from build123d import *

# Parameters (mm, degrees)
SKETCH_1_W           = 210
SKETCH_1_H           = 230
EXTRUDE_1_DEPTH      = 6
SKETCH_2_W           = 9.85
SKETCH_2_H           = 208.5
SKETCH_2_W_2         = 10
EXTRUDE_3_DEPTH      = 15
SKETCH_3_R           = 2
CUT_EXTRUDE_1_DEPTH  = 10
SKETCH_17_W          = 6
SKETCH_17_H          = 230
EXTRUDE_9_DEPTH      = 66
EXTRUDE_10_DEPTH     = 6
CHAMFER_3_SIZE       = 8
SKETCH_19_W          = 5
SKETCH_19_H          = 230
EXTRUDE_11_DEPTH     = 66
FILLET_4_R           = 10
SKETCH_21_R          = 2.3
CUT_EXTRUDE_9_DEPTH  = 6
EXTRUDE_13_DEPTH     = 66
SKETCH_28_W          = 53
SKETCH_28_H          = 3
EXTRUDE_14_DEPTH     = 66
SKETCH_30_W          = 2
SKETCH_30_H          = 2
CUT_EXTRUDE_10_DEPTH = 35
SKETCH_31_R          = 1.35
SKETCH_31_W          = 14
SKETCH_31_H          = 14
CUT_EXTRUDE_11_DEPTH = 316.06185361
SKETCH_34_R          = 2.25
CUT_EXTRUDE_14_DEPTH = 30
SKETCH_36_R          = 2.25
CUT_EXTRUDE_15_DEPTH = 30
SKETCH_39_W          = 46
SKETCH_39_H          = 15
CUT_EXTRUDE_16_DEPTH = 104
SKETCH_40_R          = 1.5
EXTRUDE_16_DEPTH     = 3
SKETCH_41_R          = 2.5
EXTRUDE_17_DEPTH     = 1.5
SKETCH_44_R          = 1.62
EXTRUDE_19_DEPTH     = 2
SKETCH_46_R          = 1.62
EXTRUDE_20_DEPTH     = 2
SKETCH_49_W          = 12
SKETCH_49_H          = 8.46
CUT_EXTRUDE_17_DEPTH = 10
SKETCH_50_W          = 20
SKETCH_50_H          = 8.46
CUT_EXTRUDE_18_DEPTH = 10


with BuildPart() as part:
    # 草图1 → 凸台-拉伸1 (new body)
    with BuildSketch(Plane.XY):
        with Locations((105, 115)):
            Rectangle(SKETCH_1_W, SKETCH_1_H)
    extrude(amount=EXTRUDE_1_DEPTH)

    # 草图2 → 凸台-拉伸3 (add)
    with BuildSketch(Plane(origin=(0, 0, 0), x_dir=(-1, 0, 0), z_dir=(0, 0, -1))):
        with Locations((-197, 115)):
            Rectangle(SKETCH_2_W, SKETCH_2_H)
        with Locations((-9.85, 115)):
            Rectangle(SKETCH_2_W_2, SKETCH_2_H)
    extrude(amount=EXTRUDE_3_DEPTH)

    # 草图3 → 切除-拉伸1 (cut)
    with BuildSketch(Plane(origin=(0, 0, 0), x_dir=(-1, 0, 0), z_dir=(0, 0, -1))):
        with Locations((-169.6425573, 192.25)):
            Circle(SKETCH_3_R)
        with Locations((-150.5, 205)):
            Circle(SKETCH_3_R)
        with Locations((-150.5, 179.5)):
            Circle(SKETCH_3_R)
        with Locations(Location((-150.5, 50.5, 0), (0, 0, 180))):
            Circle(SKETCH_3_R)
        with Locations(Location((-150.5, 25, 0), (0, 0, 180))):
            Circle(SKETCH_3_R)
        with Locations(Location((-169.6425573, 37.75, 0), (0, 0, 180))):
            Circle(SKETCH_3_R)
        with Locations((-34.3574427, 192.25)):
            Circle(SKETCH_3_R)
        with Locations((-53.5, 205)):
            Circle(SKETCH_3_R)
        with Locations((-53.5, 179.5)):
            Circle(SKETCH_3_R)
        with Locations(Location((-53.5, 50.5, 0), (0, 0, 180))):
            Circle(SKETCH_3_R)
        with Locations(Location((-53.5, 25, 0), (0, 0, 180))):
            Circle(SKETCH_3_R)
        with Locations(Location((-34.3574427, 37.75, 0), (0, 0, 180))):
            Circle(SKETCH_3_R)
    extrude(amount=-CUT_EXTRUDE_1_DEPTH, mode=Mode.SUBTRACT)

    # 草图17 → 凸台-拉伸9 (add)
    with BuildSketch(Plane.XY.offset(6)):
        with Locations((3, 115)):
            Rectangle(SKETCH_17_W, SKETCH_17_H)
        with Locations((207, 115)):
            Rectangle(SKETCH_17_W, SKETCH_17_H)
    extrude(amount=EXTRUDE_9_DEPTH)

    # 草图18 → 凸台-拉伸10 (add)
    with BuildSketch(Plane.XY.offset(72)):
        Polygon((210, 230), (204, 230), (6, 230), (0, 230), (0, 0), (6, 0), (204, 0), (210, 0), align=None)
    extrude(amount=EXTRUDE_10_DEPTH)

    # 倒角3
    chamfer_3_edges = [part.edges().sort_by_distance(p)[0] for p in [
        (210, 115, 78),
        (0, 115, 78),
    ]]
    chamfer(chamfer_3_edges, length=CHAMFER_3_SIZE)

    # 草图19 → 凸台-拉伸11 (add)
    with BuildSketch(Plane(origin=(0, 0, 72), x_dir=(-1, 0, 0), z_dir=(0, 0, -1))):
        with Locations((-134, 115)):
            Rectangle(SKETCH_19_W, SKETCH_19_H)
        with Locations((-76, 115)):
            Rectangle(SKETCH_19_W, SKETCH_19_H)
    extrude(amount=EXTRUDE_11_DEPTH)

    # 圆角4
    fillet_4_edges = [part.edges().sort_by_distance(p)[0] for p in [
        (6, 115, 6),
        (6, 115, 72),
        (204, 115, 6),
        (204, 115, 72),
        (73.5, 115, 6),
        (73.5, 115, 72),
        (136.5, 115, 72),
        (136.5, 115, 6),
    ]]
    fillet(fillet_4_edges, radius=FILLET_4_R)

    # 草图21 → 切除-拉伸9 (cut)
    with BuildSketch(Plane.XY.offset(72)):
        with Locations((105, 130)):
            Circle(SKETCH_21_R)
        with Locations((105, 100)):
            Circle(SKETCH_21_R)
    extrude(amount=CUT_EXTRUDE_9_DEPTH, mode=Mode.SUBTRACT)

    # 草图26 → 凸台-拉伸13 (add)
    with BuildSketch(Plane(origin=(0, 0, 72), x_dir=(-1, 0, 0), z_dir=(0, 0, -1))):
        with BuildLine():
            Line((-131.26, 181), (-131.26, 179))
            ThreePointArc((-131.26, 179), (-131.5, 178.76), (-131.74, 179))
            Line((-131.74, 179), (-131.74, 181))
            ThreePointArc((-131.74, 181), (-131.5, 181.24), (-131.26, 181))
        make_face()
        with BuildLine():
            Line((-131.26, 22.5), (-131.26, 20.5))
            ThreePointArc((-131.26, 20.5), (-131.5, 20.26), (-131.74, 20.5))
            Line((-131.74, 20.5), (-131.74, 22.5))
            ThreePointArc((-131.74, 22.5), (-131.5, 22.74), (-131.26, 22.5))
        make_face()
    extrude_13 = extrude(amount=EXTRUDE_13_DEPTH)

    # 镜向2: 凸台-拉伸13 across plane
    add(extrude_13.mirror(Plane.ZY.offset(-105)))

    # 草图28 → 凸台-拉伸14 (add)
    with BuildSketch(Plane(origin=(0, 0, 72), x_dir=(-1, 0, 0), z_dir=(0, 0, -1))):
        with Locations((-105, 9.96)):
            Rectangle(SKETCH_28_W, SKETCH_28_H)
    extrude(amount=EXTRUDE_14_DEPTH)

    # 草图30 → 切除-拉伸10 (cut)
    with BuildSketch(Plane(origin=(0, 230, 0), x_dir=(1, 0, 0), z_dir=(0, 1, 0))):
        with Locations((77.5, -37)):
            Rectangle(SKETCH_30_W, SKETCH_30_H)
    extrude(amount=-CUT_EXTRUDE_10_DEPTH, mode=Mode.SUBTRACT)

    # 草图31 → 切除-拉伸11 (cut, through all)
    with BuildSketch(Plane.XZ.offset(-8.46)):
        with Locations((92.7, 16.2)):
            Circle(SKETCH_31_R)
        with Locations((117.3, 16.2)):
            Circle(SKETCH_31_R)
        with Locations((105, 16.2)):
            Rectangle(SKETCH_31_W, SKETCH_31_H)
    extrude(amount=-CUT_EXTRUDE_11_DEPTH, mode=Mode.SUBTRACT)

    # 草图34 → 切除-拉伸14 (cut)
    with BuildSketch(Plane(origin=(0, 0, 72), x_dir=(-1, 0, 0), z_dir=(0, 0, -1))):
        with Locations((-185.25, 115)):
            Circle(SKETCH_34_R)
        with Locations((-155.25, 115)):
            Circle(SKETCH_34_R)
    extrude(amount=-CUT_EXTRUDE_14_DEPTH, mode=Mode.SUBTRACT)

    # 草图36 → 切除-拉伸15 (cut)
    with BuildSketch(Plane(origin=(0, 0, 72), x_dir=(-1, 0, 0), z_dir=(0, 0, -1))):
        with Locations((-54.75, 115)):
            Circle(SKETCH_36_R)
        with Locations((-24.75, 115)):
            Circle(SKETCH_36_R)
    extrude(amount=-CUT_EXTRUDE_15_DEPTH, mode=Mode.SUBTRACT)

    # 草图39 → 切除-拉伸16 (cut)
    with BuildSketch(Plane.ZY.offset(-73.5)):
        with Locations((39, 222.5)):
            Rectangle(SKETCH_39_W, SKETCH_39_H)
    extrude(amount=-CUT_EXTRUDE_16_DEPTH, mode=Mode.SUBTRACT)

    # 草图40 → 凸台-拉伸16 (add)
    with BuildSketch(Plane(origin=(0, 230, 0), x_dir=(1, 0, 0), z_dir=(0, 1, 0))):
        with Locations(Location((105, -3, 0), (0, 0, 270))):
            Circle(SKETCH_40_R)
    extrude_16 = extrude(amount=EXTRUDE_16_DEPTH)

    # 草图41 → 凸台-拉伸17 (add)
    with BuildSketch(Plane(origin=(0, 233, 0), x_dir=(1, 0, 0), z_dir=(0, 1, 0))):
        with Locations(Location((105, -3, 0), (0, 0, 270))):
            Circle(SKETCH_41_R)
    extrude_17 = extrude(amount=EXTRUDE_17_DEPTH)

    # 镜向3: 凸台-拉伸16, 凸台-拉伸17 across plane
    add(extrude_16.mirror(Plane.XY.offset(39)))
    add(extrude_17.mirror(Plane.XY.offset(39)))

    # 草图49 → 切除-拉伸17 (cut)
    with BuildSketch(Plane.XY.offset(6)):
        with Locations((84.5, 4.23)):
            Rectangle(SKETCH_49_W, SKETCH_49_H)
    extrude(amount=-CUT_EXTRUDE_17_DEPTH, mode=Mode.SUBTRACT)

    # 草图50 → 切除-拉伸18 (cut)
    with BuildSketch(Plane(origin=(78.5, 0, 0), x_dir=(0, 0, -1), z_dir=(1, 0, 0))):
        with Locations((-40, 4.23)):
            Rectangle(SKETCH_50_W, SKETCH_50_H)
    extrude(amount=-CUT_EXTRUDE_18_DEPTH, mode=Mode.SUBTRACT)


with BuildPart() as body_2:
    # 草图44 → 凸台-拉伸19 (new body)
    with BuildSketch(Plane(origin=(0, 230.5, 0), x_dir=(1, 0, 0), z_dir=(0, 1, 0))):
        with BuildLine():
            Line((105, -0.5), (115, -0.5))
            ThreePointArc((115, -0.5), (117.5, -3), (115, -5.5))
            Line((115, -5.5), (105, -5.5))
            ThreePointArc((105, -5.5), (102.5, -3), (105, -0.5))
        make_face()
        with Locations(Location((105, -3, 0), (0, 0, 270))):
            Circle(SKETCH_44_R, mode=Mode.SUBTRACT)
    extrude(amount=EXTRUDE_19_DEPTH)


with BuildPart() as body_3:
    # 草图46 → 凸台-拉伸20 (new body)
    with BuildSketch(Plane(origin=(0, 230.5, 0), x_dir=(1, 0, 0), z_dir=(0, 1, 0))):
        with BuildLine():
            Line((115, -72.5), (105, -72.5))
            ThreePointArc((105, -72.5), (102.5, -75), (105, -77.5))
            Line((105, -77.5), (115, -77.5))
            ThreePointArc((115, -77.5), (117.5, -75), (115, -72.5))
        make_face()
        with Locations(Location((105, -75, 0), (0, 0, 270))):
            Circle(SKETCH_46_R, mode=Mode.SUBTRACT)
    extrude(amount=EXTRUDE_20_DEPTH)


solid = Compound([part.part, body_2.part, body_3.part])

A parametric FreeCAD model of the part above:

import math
import FreeCAD as App
import Part
import Sketcher


def edges_at(feature, points):
    """Names of the edges that pass closest to the given points."""
    edges = feature.Shape.Edges
    near = lambda p: min(range(len(edges)), key=lambda i: edges[i].distToShape(Part.Vertex(*p))[0])
    return sorted({f"Edge{near(p) + 1}" for p in points})


def add_polygon(sketch, points):
    """Adds a closed chain of lines whose ends are joined by coincident constraints."""
    first, n = sketch.GeometryCount, len(points)
    for a, b in zip(points, points[1:] + points[:1]):
        sketch.addGeometry(Part.LineSegment(App.Vector(*a, 0), App.Vector(*b, 0)), False)
    for i in range(n):
        sketch.addConstraint(Sketcher.Constraint("Coincident", first + i, 2, first + (i + 1) % n, 1))

doc = App.newDocument("Part")
body = doc.addObject("PartDesign::Body", "Body")

# Sketch on XY plane
sketch1 = doc.addObject("Sketcher::SketchObject", "Sketch")
body.addObject(sketch1)
sketch1.AttachmentSupport = (doc.XY_Plane, [""])
sketch1.MapMode = "FlatFace"
add_polygon(sketch1, [(0, 230), (0, 0), (210, 0), (210, 230)])  # lines 0-3
sketch1.addConstraint([
    Sketcher.Constraint("Vertical", 0),
    Sketcher.Constraint("Horizontal", 1),
    Sketcher.Constraint("Vertical", 2),
    Sketcher.Constraint("Horizontal", 3),
    Sketcher.Constraint("Coincident", 0, 2, -1, 1),
    Sketcher.Constraint("DistanceX", 1, 1, 1, 2, 210.0),
    Sketcher.Constraint("DistanceY", 0, 2, 0, 1, 230.0),
])
pad1 = doc.addObject("PartDesign::Pad", "Pad")
body.addObject(pad1)
pad1.Profile = sketch1
pad1.Length = 6

# Sketch on XY plane
sketch2 = doc.addObject("Sketcher::SketchObject", "Sketch001")
body.addObject(sketch2)
sketch2.AttachmentSupport = (doc.XY_Plane, [""])
sketch2.MapMode = "FlatFace"
add_polygon(sketch2, [(202, 219), (202, 11), (192, 11), (192, 219)])  # lines 0-3
add_polygon(sketch2, [(15, 219), (15, 11), (5, 11), (5, 219)])  # lines 4-7
sketch2.addConstraint([
    Sketcher.Constraint("Vertical", 0),
    Sketcher.Constraint("Horizontal", 1),
    Sketcher.Constraint("Vertical", 2),
    Sketcher.Constraint("Horizontal", 3),
    Sketcher.Constraint("Vertical", 4),
    Sketcher.Constraint("Horizontal", 5),
    Sketcher.Constraint("Vertical", 6),
    Sketcher.Constraint("Horizontal", 7),
    Sketcher.Constraint("Horizontal", 1, 2, 4, 2),
    Sketcher.Constraint("Horizontal", 3, 2, 6, 2),
    Sketcher.Constraint("DistanceX", 5, 2, 5, 1, 10.0),
    Sketcher.Constraint("DistanceY", 0, 2, 0, 1, 208.5),
    Sketcher.Constraint("DistanceX", 1, 2, 1, 1, 9.85),
    Sketcher.Constraint("DistanceY", -1, 1, 0, 2, 10.75),
    Sketcher.Constraint("DistanceX", -1, 1, 4, 2, 14.85),
    Sketcher.Constraint("DistanceX", -1, 1, 0, 2, 201.925),
])
pad2 = doc.addObject("PartDesign::Pad", "Pad001")
body.addObject(pad2)
pad2.Profile = sketch2
pad2.Length = 15
pad2.Reversed = True

# Sketch on XY plane
sketch3 = doc.addObject("Sketcher::SketchObject", "Sketch002")
body.addObject(sketch3)
sketch3.AttachmentSupport = (doc.XY_Plane, [""])
sketch3.MapMode = "FlatFace"
sketch3.addGeometry([
    Part.Circle(App.Vector(169.6, 192.2, 0), App.Vector(0, 0, 1), 2),  # 0
    Part.Circle(App.Vector(150.5, 205, 0), App.Vector(0, 0, 1), 2),  # 1
    Part.Circle(App.Vector(150.5, 179.5, 0), App.Vector(0, 0, 1), 2),  # 2
    Part.Circle(App.Vector(150.5, 50.5, 0), App.Vector(0, 0, 1), 2),  # 3
    Part.Circle(App.Vector(150.5, 25, 0), App.Vector(0, 0, 1), 2),  # 4
    Part.Circle(App.Vector(169.6, 37.8, 0), App.Vector(0, 0, 1), 2),  # 5
    Part.Circle(App.Vector(34.4, 192.2, 0), App.Vector(0, 0, 1), 2),  # 6
    Part.Circle(App.Vector(53.5, 205, 0), App.Vector(0, 0, 1), 2),  # 7
    Part.Circle(App.Vector(53.5, 179.5, 0), App.Vector(0, 0, 1), 2),  # 8
    Part.Circle(App.Vector(53.5, 50.5, 0), App.Vector(0, 0, 1), 2),  # 9
    Part.Circle(App.Vector(53.5, 25, 0), App.Vector(0, 0, 1), 2),  # 10
    Part.Circle(App.Vector(34.4, 37.8, 0), App.Vector(0, 0, 1), 2),  # 11
], False)
sketch3.addConstraint([
    Sketcher.Constraint("Equal", 0, 1),
    Sketcher.Constraint("Equal", 1, 2),
    Sketcher.Constraint("Equal", 2, 3),
    Sketcher.Constraint("Equal", 3, 4),
    Sketcher.Constraint("Equal", 4, 5),
    Sketcher.Constraint("Equal", 5, 6),
    Sketcher.Constraint("Equal", 6, 7),
    Sketcher.Constraint("Equal", 7, 8),
    Sketcher.Constraint("Equal", 8, 9),
    Sketcher.Constraint("Equal", 9, 10),
    Sketcher.Constraint("Equal", 10, 11),
    Sketcher.Constraint("Horizontal", 0, 3, 6, 3),
    Sketcher.Constraint("Horizontal", 1, 3, 7, 3),
    Sketcher.Constraint("Horizontal", 2, 3, 8, 3),
    Sketcher.Constraint("Horizontal", 3, 3, 9, 3),
    Sketcher.Constraint("Horizontal", 4, 3, 10, 3),
    Sketcher.Constraint("Horizontal", 5, 3, 11, 3),
    Sketcher.Constraint("Vertical", 1, 3, 2, 3),
    Sketcher.Constraint("Vertical", 2, 3, 3, 3),
    Sketcher.Constraint("Vertical", 3, 3, 4, 3),
    Sketcher.Constraint("Vertical", 0, 3, 5, 3),
    Sketcher.Constraint("Vertical", 7, 3, 8, 3),
    Sketcher.Constraint("Vertical", 8, 3, 9, 3),
    Sketcher.Constraint("Vertical", 9, 3, 10, 3),
    Sketcher.Constraint("Vertical", 6, 3, 11, 3),
    Sketcher.Constraint("Diameter", 0, 4.0),
    Sketcher.Constraint("DistanceY", -1, 1, 1, 3, 205.0),
    Sketcher.Constraint("DistanceY", -1, 1, 4, 3, 25.0),
    Sketcher.Constraint("DistanceY", 3, 3, 2, 3, 129.0),
    Sketcher.Constraint("DistanceX", 7, 3, 1, 3, 97.0),
    Sketcher.Constraint("DistanceX", -1, 1, 1, 3, 150.5),
    Sketcher.Constraint("DistanceY", -1, 1, 2, 3, 179.5),
    Sketcher.Constraint("DistanceY", 5, 3, 0, 3, 154.5),
    Sketcher.Constraint("DistanceY", -1, 1, 0, 3, 192.25),
    Sketcher.Constraint("DistanceX", -1, 1, 0, 3, 169.642557),
    Sketcher.Constraint("DistanceX", -1, 1, 6, 3, 34.357443),
])
pocket1 = doc.addObject("PartDesign::Pocket", "Pocket")
body.addObject(pocket1)
pocket1.Profile = sketch3
pocket1.Length = 10
pocket1.Reversed = True

# Sketch on XY plane
sketch4 = doc.addObject("Sketcher::SketchObject", "Sketch003")
body.addObject(sketch4)
sketch4.AttachmentSupport = (doc.XY_Plane, [""])
sketch4.MapMode = "FlatFace"
sketch4.AttachmentOffset = App.Placement(App.Vector(0, 0, 6), App.Rotation())
add_polygon(sketch4, [(0, 230), (0, 0), (6, 0), (6, 230)])  # lines 0-3
add_polygon(sketch4, [(204, 230), (204, 0), (210, 0), (210, 230)])  # lines 4-7
sketch4.addConstraint([
    Sketcher.Constraint("Vertical", 0),
    Sketcher.Constraint("Horizontal", 1),
    Sketcher.Constraint("Vertical", 2),
    Sketcher.Constraint("Horizontal", 3),
    Sketcher.Constraint("Vertical", 4),
    Sketcher.Constraint("Horizontal", 5),
    Sketcher.Constraint("Vertical", 6),
    Sketcher.Constraint("Horizontal", 7),
    Sketcher.Constraint("Coincident", 0, 2, -1, 1),
    Sketcher.Constraint("PointOnObject", 4, 2, -1),
    Sketcher.Constraint("Horizontal", 3, 2, 6, 2),
    Sketcher.Constraint("Equal", 3, 5),
    Sketcher.Constraint("DistanceX", 1, 1, 1, 2, 6.0),
    Sketcher.Constraint("DistanceY", 0, 2, 0, 1, 230.0),
    Sketcher.Constraint("DistanceX", -1, 1, 4, 2, 204.0),
])
pad3 = doc.addObject("PartDesign::Pad", "Pad002")
body.addObject(pad3)
pad3.Profile = sketch4
pad3.Length = 66

# Sketch on XY plane
sketch5 = doc.addObject("Sketcher::SketchObject", "Sketch004")
body.addObject(sketch5)
sketch5.AttachmentSupport = (doc.XY_Plane, [""])
sketch5.MapMode = "FlatFace"
sketch5.AttachmentOffset = App.Placement(App.Vector(0, 0, 72), App.Rotation())
add_polygon(sketch5, [(210, 230), (0, 230), (0, 0), (210, 0)])  # lines 0-3
sketch5.addConstraint([
    Sketcher.Constraint("Horizontal", 0),
    Sketcher.Constraint("Vertical", 1),
    Sketcher.Constraint("Horizontal", 2),
    Sketcher.Constraint("Vertical", 3),
    Sketcher.Constraint("Coincident", 1, 2, -1, 1),
    Sketcher.Constraint("DistanceX", 0, 2, 0, 1, 210.0),
    Sketcher.Constraint("DistanceY", 1, 2, 1, 1, 230.0),
])
pad4 = doc.addObject("PartDesign::Pad", "Pad003")
body.addObject(pad4)
pad4.Profile = sketch5
pad4.Length = 6
doc.recompute()

chamfer = doc.addObject("PartDesign::Chamfer", "Chamfer")
body.addObject(chamfer)
chamfer.Base = (pad4, edges_at(pad4, [(210, 115, 78), (0, 115, 78)]))
chamfer.Size = 8

# Sketch on XY plane
sketch6 = doc.addObject("Sketcher::SketchObject", "Sketch005")
body.addObject(sketch6)
sketch6.AttachmentSupport = (doc.XY_Plane, [""])
sketch6.MapMode = "FlatFace"
sketch6.AttachmentOffset = App.Placement(App.Vector(0, 0, 72), App.Rotation())
add_polygon(sketch6, [(136, 230), (136, 0), (132, 0), (132, 230)])  # lines 0-3
add_polygon(sketch6, [(78, 230), (78, 0), (74, 0), (74, 230)])  # lines 4-7
sketch6.addConstraint([
    Sketcher.Constraint("Vertical", 0),
    Sketcher.Constraint("Horizontal", 1),
    Sketcher.Constraint("Vertical", 2),
    Sketcher.Constraint("Horizontal", 3),
    Sketcher.Constraint("Vertical", 4),
    Sketcher.Constraint("Horizontal", 5),
    Sketcher.Constraint("Vertical", 6),
    Sketcher.Constraint("Horizontal", 7),
    Sketcher.Constraint("PointOnObject", 0, 2, -1),
    Sketcher.Constraint("PointOnObject", 4, 2, -1),
    Sketcher.Constraint("Horizontal", 3, 2, 6, 2),
    Sketcher.Constraint("Equal", 3, 5),
    Sketcher.Constraint("DistanceX", 1, 2, 1, 1, 5.0),
    Sketcher.Constraint("DistanceY", 0, 2, 0, 1, 230.0),
    Sketcher.Constraint("DistanceX", 4, 2, 1, 2, 53.0),
    Sketcher.Constraint("DistanceX", -1, 1, 0, 2, 136.5),
])
pad5 = doc.addObject("PartDesign::Pad", "Pad004")
body.addObject(pad5)
pad5.Profile = sketch6
pad5.Length = 66
pad5.Reversed = True
doc.recompute()

fillet = doc.addObject("PartDesign::Fillet", "Fillet")
body.addObject(fillet)
fillet.Base = (pad5, edges_at(pad5, [
    (6, 115, 6),
    (6, 115, 72),
    (204, 115, 6),
    (204, 115, 72),
    (73.5, 115, 6),
    (73.5, 115, 72),
    (136.5, 115, 72),
    (136.5, 115, 6),
]))
fillet.Radius = 10

# Sketch on XY plane
sketch7 = doc.addObject("Sketcher::SketchObject", "Sketch006")
body.addObject(sketch7)
sketch7.AttachmentSupport = (doc.XY_Plane, [""])
sketch7.MapMode = "FlatFace"
sketch7.AttachmentOffset = App.Placement(App.Vector(0, 0, 72), App.Rotation())
sketch7.addGeometry([
    Part.Circle(App.Vector(105, 130, 0), App.Vector(0, 0, 1), 2.3),
    Part.Circle(App.Vector(105, 100, 0), App.Vector(0, 0, 1), 2.3),
], False)
sketch7.addConstraint([
    Sketcher.Constraint("Equal", 0, 1),
    Sketcher.Constraint("Vertical", 0, 3, 1, 3),
    Sketcher.Constraint("Diameter", 0, 4.6),
    Sketcher.Constraint("DistanceX", -1, 1, 0, 3, 105.0),
    Sketcher.Constraint("DistanceY", -1, 1, 0, 3, 130.0),
    Sketcher.Constraint("DistanceY", -1, 1, 1, 3, 100.0),
])
pocket2 = doc.addObject("PartDesign::Pocket", "Pocket001")
body.addObject(pocket2)
pocket2.Profile = sketch7
pocket2.Length = 6
pocket2.Reversed = True

# Sketch on XY plane
sketch8 = doc.addObject("Sketcher::SketchObject", "Sketch007")
body.addObject(sketch8)
sketch8.AttachmentSupport = (doc.XY_Plane, [""])
sketch8.MapMode = "FlatFace"
sketch8.AttachmentOffset = App.Placement(App.Vector(0, 0, 72), App.Rotation())
sketch8.addGeometry([
    Part.LineSegment(App.Vector(131.26, 179, 0), App.Vector(131.26, 181, 0)),  # 0
    Part.ArcOfCircle(Part.Circle(App.Vector(131.5, 181, 0), App.Vector(0, 0, 1), 0.24), math.radians(0), math.radians(180)),  # 1
    Part.LineSegment(App.Vector(131.74, 181, 0), App.Vector(131.74, 179, 0)),  # 2
    Part.ArcOfCircle(Part.Circle(App.Vector(131.5, 179, 0), App.Vector(0, 0, 1), 0.24), math.radians(180), math.radians(360)),  # 3
    Part.LineSegment(App.Vector(131.26, 20.5, 0), App.Vector(131.26, 22.5, 0)),  # 4
    Part.ArcOfCircle(Part.Circle(App.Vector(131.5, 22.5, 0), App.Vector(0, 0, 1), 0.24), math.radians(0), math.radians(180)),  # 5
    Part.LineSegment(App.Vector(131.74, 22.5, 0), App.Vector(131.74, 20.5, 0)),  # 6
    Part.ArcOfCircle(Part.Circle(App.Vector(131.5, 20.5, 0), App.Vector(0, 0, 1), 0.24), math.radians(180), math.radians(360)),  # 7
], False)
sketch8.addConstraint([
    Sketcher.Constraint("Tangent", 0, 2, 1, 2),
    Sketcher.Constraint("Tangent", 1, 1, 2, 1),
    Sketcher.Constraint("Tangent", 2, 2, 3, 2),
    Sketcher.Constraint("Tangent", 3, 1, 0, 1),
    Sketcher.Constraint("Tangent", 4, 2, 5, 2),
    Sketcher.Constraint("Tangent", 5, 1, 6, 1),
    Sketcher.Constraint("Tangent", 6, 2, 7, 2),
    Sketcher.Constraint("Tangent", 7, 1, 4, 1),
    Sketcher.Constraint("Vertical", 0),
    Sketcher.Constraint("Vertical", 2),
    Sketcher.Constraint("Vertical", 4),
    Sketcher.Constraint("Vertical", 6),
    Sketcher.Constraint("Equal", 3, 5),
    Sketcher.Constraint("Vertical", 3, 3, 5, 3),
    Sketcher.Constraint("Equal", 2, 4),
    Sketcher.Constraint("DistanceY", 0, 1, 0, 2, 2.0),
    Sketcher.Constraint("Radius", 1, 0.24),
    Sketcher.Constraint("DistanceY", -1, 1, 1, 3, 181.0),
    Sketcher.Constraint("DistanceX", -1, 1, 1, 3, 131.5),
    Sketcher.Constraint("DistanceY", -1, 1, 5, 3, 22.5),
])
pad6 = doc.addObject("PartDesign::Pad", "Pad005")
body.addObject(pad6)
pad6.Profile = sketch8
pad6.Length = 66
pad6.Reversed = True
doc.recompute()

datumplane = doc.addObject("PartDesign::Plane", "DatumPlane")
body.addObject(datumplane)
datumplane.AttachmentSupport = (doc.YZ_Plane, [""])
datumplane.MapMode = "FlatFace"
datumplane.AttachmentOffset = App.Placement(App.Vector(0, 0, 105), App.Rotation())
mirrored = doc.addObject("PartDesign::Mirrored", "Mirrored")
body.addObject(mirrored)
mirrored.Originals = [pad6]
mirrored.MirrorPlane = (datumplane, [""])
body.Tip = mirrored

# Sketch on XY plane
sketch9 = doc.addObject("Sketcher::SketchObject", "Sketch008")
body.addObject(sketch9)
sketch9.AttachmentSupport = (doc.XY_Plane, [""])
sketch9.MapMode = "FlatFace"
sketch9.AttachmentOffset = App.Placement(App.Vector(0, 0, 72), App.Rotation())
add_polygon(sketch9, [(131.5, 11.5), (131.5, 8.5), (78.5, 8.5), (78.5, 11.5)])  # lines 0-3
sketch9.addConstraint([
    Sketcher.Constraint("Vertical", 0),
    Sketcher.Constraint("Horizontal", 1),
    Sketcher.Constraint("Vertical", 2),
    Sketcher.Constraint("Horizontal", 3),
    Sketcher.Constraint("DistanceX", 1, 2, 1, 1, 53.0),
    Sketcher.Constraint("DistanceY", 0, 2, 0, 1, 3.0),
    Sketcher.Constraint("DistanceX", -1, 1, 0, 2, 131.5),
    Sketcher.Constraint("DistanceY", -1, 1, 0, 2, 8.46),
])
pad7 = doc.addObject("PartDesign::Pad", "Pad006")
body.addObject(pad7)
pad7.Profile = sketch9
pad7.Length = 66
pad7.Reversed = True

# Sketch on XZ plane
sketch10 = doc.addObject("Sketcher::SketchObject", "Sketch009")
body.addObject(sketch10)
sketch10.AttachmentSupport = (doc.XZ_Plane, [""])
sketch10.MapMode = "FlatFace"
sketch10.AttachmentOffset = App.Placement(App.Vector(0, 0, -230), App.Rotation())
add_polygon(sketch10, [(76.5, 36), (76.5, 38), (78.5, 38), (78.5, 36)])  # lines 0-3
sketch10.addConstraint([
    Sketcher.Constraint("Vertical", 0),
    Sketcher.Constraint("Horizontal", 1),
    Sketcher.Constraint("Vertical", 2),
    Sketcher.Constraint("Horizontal", 3),
    Sketcher.Constraint("Equal", 3, 0),
    Sketcher.Constraint("DistanceX", 1, 1, 1, 2, 2.0),
    Sketcher.Constraint("DistanceY", -1, 1, 0, 2, 38.0),
    Sketcher.Constraint("DistanceX", -1, 1, 0, 2, 76.5),
])
pocket3 = doc.addObject("PartDesign::Pocket", "Pocket002")
body.addObject(pocket3)
pocket3.Profile = sketch10
pocket3.Length = 35
pocket3.Reversed = True

# Sketch on XZ plane
sketch11 = doc.addObject("Sketcher::SketchObject", "Sketch010")
body.addObject(sketch11)
sketch11.AttachmentSupport = (doc.XZ_Plane, [""])
sketch11.MapMode = "FlatFace"
sketch11.AttachmentOffset = App.Placement(App.Vector(0, 0, -8.46), App.Rotation())
sketch11.addGeometry(Part.Circle(App.Vector(92.7, 16.2, 0), App.Vector(0, 0, 1), 1.4), False)  # 0
sketch11.addGeometry(Part.Circle(App.Vector(117.3, 16.2, 0), App.Vector(0, 0, 1), 1.4), False)  # 1
add_polygon(sketch11, [(98, 23.2), (98, 9.2), (112, 9.2), (112, 23.2)])  # lines 2-5
sketch11.addConstraint([
    Sketcher.Constraint("Vertical", 2),
    Sketcher.Constraint("Horizontal", 3),
    Sketcher.Constraint("Vertical", 4),
    Sketcher.Constraint("Horizontal", 5),
    Sketcher.Constraint("Equal", 0, 1),
    Sketcher.Constraint("Horizontal", 0, 3, 1, 3),
    Sketcher.Constraint("Equal", 5, 2),
    Sketcher.Constraint("Diameter", 0, 2.7),
    Sketcher.Constraint("DistanceX", 3, 1, 3, 2, 14.0),
    Sketcher.Constraint("DistanceX", -1, 1, 2, 2, 98.0),
    Sketcher.Constraint("DistanceY", 2, 2, 0, 3, 7.0),
    Sketcher.Constraint("DistanceX", -1, 1, 0, 3, 92.7),
    Sketcher.Constraint("DistanceY", -1, 1, 0, 3, 16.2),
    Sketcher.Constraint("DistanceX", -1, 1, 1, 3, 117.3),
])
pocket4 = doc.addObject("PartDesign::Pocket", "Pocket003")
body.addObject(pocket4)
pocket4.Profile = sketch11
pocket4.Type = "ThroughAll"

# Sketch on XY plane
sketch12 = doc.addObject("Sketcher::SketchObject", "Sketch011")
body.addObject(sketch12)
sketch12.AttachmentSupport = (doc.XY_Plane, [""])
sketch12.MapMode = "FlatFace"
sketch12.AttachmentOffset = App.Placement(App.Vector(0, 0, 72), App.Rotation())
sketch12.addGeometry([
    Part.Circle(App.Vector(185.2, 115, 0), App.Vector(0, 0, 1), 2.2),
    Part.Circle(App.Vector(155.2, 115, 0), App.Vector(0, 0, 1), 2.2),
], False)
sketch12.addConstraint([
    Sketcher.Constraint("Equal", 0, 1),
    Sketcher.Constraint("Horizontal", 0, 3, 1, 3),
    Sketcher.Constraint("Diameter", 0, 4.5),
    Sketcher.Constraint("DistanceY", -1, 1, 0, 3, 115.0),
    Sketcher.Constraint("DistanceX", 1, 3, 0, 3, 30.0),
    Sketcher.Constraint("DistanceX", -1, 1, 0, 3, 185.25),
])
pocket5 = doc.addObject("PartDesign::Pocket", "Pocket004")
body.addObject(pocket5)
pocket5.Profile = sketch12
pocket5.Length = 30
pocket5.Reversed = True

# Sketch on XY plane
sketch13 = doc.addObject("Sketcher::SketchObject", "Sketch012")
body.addObject(sketch13)
sketch13.AttachmentSupport = (doc.XY_Plane, [""])
sketch13.MapMode = "FlatFace"
sketch13.AttachmentOffset = App.Placement(App.Vector(0, 0, 72), App.Rotation())
sketch13.addGeometry([
    Part.Circle(App.Vector(54.8, 115, 0), App.Vector(0, 0, 1), 2.2),
    Part.Circle(App.Vector(24.8, 115, 0), App.Vector(0, 0, 1), 2.2),
], False)
sketch13.addConstraint([
    Sketcher.Constraint("Equal", 0, 1),
    Sketcher.Constraint("Horizontal", 0, 3, 1, 3),
    Sketcher.Constraint("Diameter", 0, 4.5),
    Sketcher.Constraint("DistanceY", -1, 1, 0, 3, 115.0),
    Sketcher.Constraint("DistanceX", 1, 3, 0, 3, 30.0),
    Sketcher.Constraint("DistanceX", -1, 1, 0, 3, 54.75),
])
pocket6 = doc.addObject("PartDesign::Pocket", "Pocket005")
body.addObject(pocket6)
pocket6.Profile = sketch13
pocket6.Length = 30
pocket6.Reversed = True

# Sketch on YZ plane
sketch14 = doc.addObject("Sketcher::SketchObject", "Sketch013")
body.addObject(sketch14)
sketch14.AttachmentSupport = (doc.YZ_Plane, [""])
sketch14.MapMode = "FlatFace"
sketch14.AttachmentOffset = App.Placement(App.Vector(0, 0, 73.5), App.Rotation())
add_polygon(sketch14, [(230, 16), (215, 16), (215, 62), (230, 62)])  # lines 0-3
sketch14.addConstraint([
    Sketcher.Constraint("Horizontal", 0),
    Sketcher.Constraint("Vertical", 1),
    Sketcher.Constraint("Horizontal", 2),
    Sketcher.Constraint("Vertical", 3),
    Sketcher.Constraint("DistanceX", 0, 2, 0, 1, 15.0),
    Sketcher.Constraint("DistanceY", 1, 1, 1, 2, 46.0),
    Sketcher.Constraint("DistanceX", -1, 1, 0, 2, 215.0),
    Sketcher.Constraint("DistanceY", -1, 1, 0, 2, 16.0),
])
pocket7 = doc.addObject("PartDesign::Pocket", "Pocket006")
body.addObject(pocket7)
pocket7.Profile = sketch14
pocket7.Length = 104
pocket7.Reversed = True

# Sketch on XZ plane
sketch15 = doc.addObject("Sketcher::SketchObject", "Sketch014")
body.addObject(sketch15)
sketch15.AttachmentSupport = (doc.XZ_Plane, [""])
sketch15.MapMode = "FlatFace"
sketch15.AttachmentOffset = App.Placement(App.Vector(0, 0, -230), App.Rotation())
sketch15.addGeometry(Part.Circle(App.Vector(105, 3, 0), App.Vector(0, 0, 1), 1.5), False)
sketch15.addConstraint([
    Sketcher.Constraint("Diameter", 0, 3.0),
    Sketcher.Constraint("DistanceX", -1, 1, 0, 3, 105.0),
    Sketcher.Constraint("DistanceY", -1, 1, 0, 3, 3.0),
])
pad8 = doc.addObject("PartDesign::Pad", "Pad007")
body.addObject(pad8)
pad8.Profile = sketch15
pad8.Length = 3
pad8.Reversed = True

# Sketch on XZ plane
sketch16 = doc.addObject("Sketcher::SketchObject", "Sketch015")
body.addObject(sketch16)
sketch16.AttachmentSupport = (doc.XZ_Plane, [""])
sketch16.MapMode = "FlatFace"
sketch16.AttachmentOffset = App.Placement(App.Vector(0, 0, -233), App.Rotation())
sketch16.addGeometry(Part.Circle(App.Vector(105, 3, 0), App.Vector(0, 0, 1), 2.5), False)
sketch16.addConstraint([
    Sketcher.Constraint("Diameter", 0, 5.0),
    Sketcher.Constraint("DistanceX", -1, 1, 0, 3, 105.0),
    Sketcher.Constraint("DistanceY", -1, 1, 0, 3, 3.0),
])
pad9 = doc.addObject("PartDesign::Pad", "Pad008")
body.addObject(pad9)
pad9.Profile = sketch16
pad9.Length = 1.5
pad9.Reversed = True
doc.recompute()

datumplane2 = doc.addObject("PartDesign::Plane", "DatumPlane001")
body.addObject(datumplane2)
datumplane2.AttachmentSupport = (doc.XY_Plane, [""])
datumplane2.MapMode = "FlatFace"
datumplane2.AttachmentOffset = App.Placement(App.Vector(0, 0, 39), App.Rotation())
mirrored2 = doc.addObject("PartDesign::Mirrored", "Mirrored001")
body.addObject(mirrored2)
mirrored2.Originals = [pad8, pad9]
mirrored2.MirrorPlane = (datumplane2, [""])
body.Tip = mirrored2

# Sketch on XY plane
sketch17 = doc.addObject("Sketcher::SketchObject", "Sketch016")
body.addObject(sketch17)
sketch17.AttachmentSupport = (doc.XY_Plane, [""])
sketch17.MapMode = "FlatFace"
sketch17.AttachmentOffset = App.Placement(App.Vector(0, 0, 6), App.Rotation())
add_polygon(sketch17, [(78, 8), (78, 0), (90, 0), (90, 8)])  # lines 0-3
sketch17.addConstraint([
    Sketcher.Constraint("Vertical", 0),
    Sketcher.Constraint("Horizontal", 1),
    Sketcher.Constraint("Vertical", 2),
    Sketcher.Constraint("Horizontal", 3),
    Sketcher.Constraint("PointOnObject", 0, 2, -1),
    Sketcher.Constraint("DistanceX", 1, 1, 1, 2, 12.0),
    Sketcher.Constraint("DistanceY", 0, 2, 0, 1, 8.46),
    Sketcher.Constraint("DistanceX", -1, 1, 0, 2, 78.5),
])
pocket8 = doc.addObject("PartDesign::Pocket", "Pocket007")
body.addObject(pocket8)
pocket8.Profile = sketch17
pocket8.Length = 10

# Sketch on YZ plane
sketch18 = doc.addObject("Sketcher::SketchObject", "Sketch017")
body.addObject(sketch18)
sketch18.AttachmentSupport = (doc.YZ_Plane, [""])
sketch18.MapMode = "FlatFace"
sketch18.AttachmentOffset = App.Placement(App.Vector(0, 0, 78.5), App.Rotation())
add_polygon(sketch18, [(8, 50), (0, 50), (0, 30), (8, 30)])  # lines 0-3
sketch18.addConstraint([
    Sketcher.Constraint("Horizontal", 0),
    Sketcher.Constraint("Vertical", 1),
    Sketcher.Constraint("Horizontal", 2),
    Sketcher.Constraint("Vertical", 3),
    Sketcher.Constraint("PointOnObject", 0, 2, -2),
    Sketcher.Constraint("DistanceY", 1, 2, 1, 1, 20.0),
    Sketcher.Constraint("DistanceY", -1, 1, 0, 2, 50.0),
    Sketcher.Constraint("DistanceX", 0, 2, 0, 1, 8.46),
])
pocket9 = doc.addObject("PartDesign::Pocket", "Pocket008")
body.addObject(pocket9)
pocket9.Profile = sketch18
pocket9.Length = 10
body2 = doc.addObject("PartDesign::Body", "Body001")

# Sketch on XZ plane
sketch19 = doc.addObject("Sketcher::SketchObject", "Sketch018")
body2.addObject(sketch19)
sketch19.AttachmentSupport = (doc.getObject("XZ_Plane001"), [""])
sketch19.MapMode = "FlatFace"
sketch19.AttachmentOffset = App.Placement(App.Vector(0, 0, -230.5), App.Rotation())
sketch19.addGeometry([
    Part.LineSegment(App.Vector(115, 0.5, 0), App.Vector(105, 0.5, 0)),  # 0
    Part.ArcOfCircle(Part.Circle(App.Vector(105, 3, 0), App.Vector(0, 0, 1), 2.5), math.radians(90), math.radians(270)),  # 1
    Part.LineSegment(App.Vector(105, 5.5, 0), App.Vector(115, 5.5, 0)),  # 2
    Part.ArcOfCircle(Part.Circle(App.Vector(115, 3, 0), App.Vector(0, 0, 1), 2.5), math.radians(-90), math.radians(90)),  # 3
    Part.Circle(App.Vector(105, 3, 0), App.Vector(0, 0, 1), 1.6),  # 4
], False)
sketch19.addConstraint([
    Sketcher.Constraint("Tangent", 0, 2, 1, 2),
    Sketcher.Constraint("Tangent", 1, 1, 2, 1),
    Sketcher.Constraint("Tangent", 2, 2, 3, 2),
    Sketcher.Constraint("Tangent", 3, 1, 0, 1),
    Sketcher.Constraint("Horizontal", 0),
    Sketcher.Constraint("Horizontal", 2),
    Sketcher.Constraint("Coincident", 4, 3, 1, 3),
    Sketcher.Constraint("Radius", 1, 2.5),
    Sketcher.Constraint("Diameter", 4, 3.24),
    Sketcher.Constraint("DistanceX", 0, 2, 0, 1, 10.0),
    Sketcher.Constraint("DistanceX", -1, 1, 1, 3, 105.0),
    Sketcher.Constraint("DistanceY", -1, 1, 1, 3, 3.0),
])
pad10 = doc.addObject("PartDesign::Pad", "Pad009")
body2.addObject(pad10)
pad10.Profile = sketch19
pad10.Length = 2
pad10.Reversed = True
body3 = doc.addObject("PartDesign::Body", "Body002")

# Sketch on XZ plane
sketch20 = doc.addObject("Sketcher::SketchObject", "Sketch019")
body3.addObject(sketch20)
sketch20.AttachmentSupport = (doc.getObject("XZ_Plane002"), [""])
sketch20.MapMode = "FlatFace"
sketch20.AttachmentOffset = App.Placement(App.Vector(0, 0, -230.5), App.Rotation())
sketch20.addGeometry([
    Part.LineSegment(App.Vector(115, 72.5, 0), App.Vector(105, 72.5, 0)),  # 0
    Part.ArcOfCircle(Part.Circle(App.Vector(105, 75, 0), App.Vector(0, 0, 1), 2.5), math.radians(90), math.radians(270)),  # 1
    Part.LineSegment(App.Vector(105, 77.5, 0), App.Vector(115, 77.5, 0)),  # 2
    Part.ArcOfCircle(Part.Circle(App.Vector(115, 75, 0), App.Vector(0, 0, 1), 2.5), math.radians(-90), math.radians(90)),  # 3
    Part.Circle(App.Vector(105, 75, 0), App.Vector(0, 0, 1), 1.6),  # 4
], False)
sketch20.addConstraint([
    Sketcher.Constraint("Tangent", 0, 2, 1, 2),
    Sketcher.Constraint("Tangent", 1, 1, 2, 1),
    Sketcher.Constraint("Tangent", 2, 2, 3, 2),
    Sketcher.Constraint("Tangent", 3, 1, 0, 1),
    Sketcher.Constraint("Horizontal", 0),
    Sketcher.Constraint("Horizontal", 2),
    Sketcher.Constraint("Coincident", 4, 3, 1, 3),
    Sketcher.Constraint("Radius", 1, 2.5),
    Sketcher.Constraint("Diameter", 4, 3.24),
    Sketcher.Constraint("DistanceX", 0, 2, 0, 1, 10.0),
    Sketcher.Constraint("DistanceX", -1, 1, 1, 3, 105.0),
    Sketcher.Constraint("DistanceY", -1, 1, 1, 3, 75.0),
])
pad11 = doc.addObject("PartDesign::Pad", "Pad010")
body3.addObject(pad11)
pad11.Profile = sketch20
pad11.Length = 2
pad11.Reversed = True

doc.recompute()
